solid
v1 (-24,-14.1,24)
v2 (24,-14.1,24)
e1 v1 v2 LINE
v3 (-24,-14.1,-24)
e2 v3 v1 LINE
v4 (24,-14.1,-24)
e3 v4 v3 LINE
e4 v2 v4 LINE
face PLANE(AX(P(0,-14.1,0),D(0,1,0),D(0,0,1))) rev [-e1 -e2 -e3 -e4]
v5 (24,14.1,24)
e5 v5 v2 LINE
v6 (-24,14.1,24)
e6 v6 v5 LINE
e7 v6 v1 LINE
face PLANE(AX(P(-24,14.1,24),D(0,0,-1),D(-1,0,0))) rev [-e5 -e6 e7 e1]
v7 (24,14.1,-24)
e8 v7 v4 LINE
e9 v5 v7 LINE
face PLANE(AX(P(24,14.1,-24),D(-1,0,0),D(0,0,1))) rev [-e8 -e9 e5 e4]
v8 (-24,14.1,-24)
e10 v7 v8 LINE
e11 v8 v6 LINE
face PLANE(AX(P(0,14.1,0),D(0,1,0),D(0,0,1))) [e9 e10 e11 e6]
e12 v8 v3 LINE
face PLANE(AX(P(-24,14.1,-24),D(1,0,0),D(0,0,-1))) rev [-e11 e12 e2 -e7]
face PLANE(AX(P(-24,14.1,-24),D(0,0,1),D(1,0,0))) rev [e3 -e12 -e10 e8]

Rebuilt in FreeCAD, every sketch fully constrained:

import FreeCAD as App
import Part
import Sketcher

doc = App.newDocument("Part")
body = doc.addObject("PartDesign::Body", "Body")

# Sketch on XZ plane
sketch1 = doc.addObject("Sketcher::SketchObject", "Sketch")
body.addObject(sketch1)
sketch1.AttachmentSupport = (doc.XZ_Plane, [""])
sketch1.MapMode = "FlatFace"
sketch1.addGeometry(Part.LineSegment(App.Vector(-24, -24, 0), App.Vector(-24, 24, 0)), False)
sketch1.addGeometry(Part.LineSegment(App.Vector(-24, 24, 0), App.Vector(24, 24, 0)), False)
sketch1.addGeometry(Part.LineSegment(App.Vector(24, 24, 0), App.Vector(24, -24, 0)), False)
sketch1.addGeometry(Part.LineSegment(App.Vector(24, -24, 0), App.Vector(-24, -24, 0)), False)
sketch1.addConstraint(Sketcher.Constraint("Coincident", 0, 2, 1, 1))
sketch1.addConstraint(Sketcher.Constraint("Coincident", 1, 2, 2, 1))
sketch1.addConstraint(Sketcher.Constraint("Coincident", 2, 2, 3, 1))
sketch1.addConstraint(Sketcher.Constraint("Coincident", 3, 2, 0, 1))
sketch1.addConstraint(Sketcher.Constraint("Vertical", 0))
sketch1.addConstraint(Sketcher.Constraint("Horizontal", 1))
sketch1.addConstraint(Sketcher.Constraint("Vertical", 2))
sketch1.addConstraint(Sketcher.Constraint("Horizontal", 3))
sketch1.addConstraint(Sketcher.Constraint("Symmetric", 0, 2, 2, 2, -1, 1))
sketch1.addConstraint(Sketcher.Constraint("Equal", 3, 0))
sketch1.addConstraint(Sketcher.Constraint("DistanceX", 1, 1, 1, 2, 48.0))
pad1 = doc.addObject("PartDesign::Pad", "Pad")
body.addObject(pad1)
pad1.Profile = sketch1
pad1.Length = 28.2
pad1.Midplane = True

doc.recompute()
